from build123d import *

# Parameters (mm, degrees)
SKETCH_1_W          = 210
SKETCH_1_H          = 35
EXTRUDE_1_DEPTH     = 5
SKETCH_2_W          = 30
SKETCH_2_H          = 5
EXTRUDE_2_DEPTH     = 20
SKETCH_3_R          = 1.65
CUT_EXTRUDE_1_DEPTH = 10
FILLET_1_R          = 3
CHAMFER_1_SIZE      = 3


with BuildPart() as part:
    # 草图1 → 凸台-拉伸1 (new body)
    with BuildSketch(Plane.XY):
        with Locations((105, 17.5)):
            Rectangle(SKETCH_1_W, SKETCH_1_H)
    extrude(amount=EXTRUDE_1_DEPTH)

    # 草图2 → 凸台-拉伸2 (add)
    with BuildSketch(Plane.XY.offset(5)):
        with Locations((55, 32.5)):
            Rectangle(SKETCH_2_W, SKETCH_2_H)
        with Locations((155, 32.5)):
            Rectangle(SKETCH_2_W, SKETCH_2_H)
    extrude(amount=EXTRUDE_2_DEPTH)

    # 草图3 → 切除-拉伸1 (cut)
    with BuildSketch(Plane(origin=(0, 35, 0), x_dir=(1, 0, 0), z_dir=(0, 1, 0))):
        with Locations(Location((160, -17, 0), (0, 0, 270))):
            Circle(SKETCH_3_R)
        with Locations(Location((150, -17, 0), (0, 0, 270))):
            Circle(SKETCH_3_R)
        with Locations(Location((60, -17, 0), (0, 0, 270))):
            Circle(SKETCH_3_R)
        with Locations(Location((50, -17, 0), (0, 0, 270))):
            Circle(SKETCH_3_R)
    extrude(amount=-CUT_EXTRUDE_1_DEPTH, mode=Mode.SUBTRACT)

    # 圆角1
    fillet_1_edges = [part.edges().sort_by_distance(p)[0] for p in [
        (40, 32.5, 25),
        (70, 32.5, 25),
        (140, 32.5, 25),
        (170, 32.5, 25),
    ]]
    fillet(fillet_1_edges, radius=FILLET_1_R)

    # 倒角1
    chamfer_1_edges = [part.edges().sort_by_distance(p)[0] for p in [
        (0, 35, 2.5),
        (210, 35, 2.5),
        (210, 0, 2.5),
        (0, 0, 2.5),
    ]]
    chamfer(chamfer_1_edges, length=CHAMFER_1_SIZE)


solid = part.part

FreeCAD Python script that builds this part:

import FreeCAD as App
import Part
import Sketcher
from FreeCAD import Vector
Q = App.Units.Quantity


def edges_at(feature, points):
    """Names of the edges that pass closest to the given points."""
    edges = feature.Shape.Edges
    near = lambda p: min(range(len(edges)), key=lambda i: edges[i].distToShape(Part.Vertex(*p))[0])
    return sorted({f"Edge{near(p) + 1}" for p in points})


def add_polygon(sketch, points):
    """Adds a closed chain of lines whose ends are joined by coincident constraints."""
    first, n = sketch.GeometryCount, len(points)
    for a, b in zip(points, points[1:] + points[:1]):
        sketch.addGeometry(Part.LineSegment(App.Vector(*a, 0), App.Vector(*b, 0)), False)
    for i in range(n):
        sketch.addConstraint(Sketcher.Constraint("Coincident", first + i, 2, first + (i + 1) % n, 1))

doc = App.newDocument("Part")
body = doc.addObject("PartDesign::Body", "Body")

# Sketch on XY plane
sketch1 = doc.addObject("Sketcher::SketchObject", "Sketch")
body.addObject(sketch1)
sketch1.AttachmentSupport = (doc.XY_Plane, [""])
sketch1.MapMode = "FlatFace"
add_polygon(sketch1, [(0, 35), (0, 0), (210, 0), (210, 35)])  # lines 0-3
sketch1.addConstraint([
    Sketcher.Constraint("Vertical", 0),
    Sketcher.Constraint("Horizontal", 1),
    Sketcher.Constraint("Vertical", 2),
    Sketcher.Constraint("Horizontal", 3),
    Sketcher.Constraint("Coincident", 0, 2, -1, 1),
    Sketcher.Constraint("DistanceX", 1, 1, 1, 2, Q("210 mm")),
    Sketcher.Constraint("DistanceY", 0, 2, 0, 1, Q("35 mm")),
])
pad1 = doc.addObject("PartDesign::Pad", "Pad")
body.addObject(pad1)
pad1.Profile = sketch1
pad1.Length = 5

# Sketch on XY plane
sketch2 = doc.addObject("Sketcher::SketchObject", "Sketch001")
body.addObject(sketch2)
sketch2.AttachmentSupport = (doc.XY_Plane, [""])
sketch2.MapMode = "FlatFace"
sketch2.AttachmentOffset = App.Placement(Vector(0, 0, 5), App.Rotation())
add_polygon(sketch2, [(40, 35), (40, 30), (70, 30), (70, 35)])  # lines 0-3
add_polygon(sketch2, [(140, 35), (140, 30), (170, 30), (170, 35)])  # lines 4-7
sketch2.addConstraint([
    Sketcher.Constraint("Vertical", 0),
    Sketcher.Constraint("Horizontal", 1),
    Sketcher.Constraint("Vertical", 2),
    Sketcher.Constraint("Horizontal", 3),
    Sketcher.Constraint("Vertical", 4),
    Sketcher.Constraint("Horizontal", 5),
    Sketcher.Constraint("Vertical", 6),
    Sketcher.Constraint("Horizontal", 7),
    Sketcher.Constraint("Horizontal", 1, 2, 4, 2),
    Sketcher.Constraint("Horizontal", 3, 2, 6, 2),
    Sketcher.Constraint("Equal", 3, 5),
    Sketcher.Constraint("DistanceX", 1, 1, 1, 2, Q("30 mm")),
    Sketcher.Constraint("DistanceY", 0, 2, 0, 1, Q("5 mm")),
    Sketcher.Constraint("DistanceX", -1, 1, 0, 2, Q("40 mm")),
    Sketcher.Constraint("DistanceY", -1, 1, 0, 2, Q("30 mm")),
    Sketcher.Constraint("DistanceX", -1, 1, 4, 2, Q("140 mm")),
])
pad2 = doc.addObject("PartDesign::Pad", "Pad001")
body.addObject(pad2)
pad2.Profile = sketch2
pad2.Length = 20

# Sketch on XZ plane
sketch3 = doc.addObject("Sketcher::SketchObject", "Sketch002")
body.addObject(sketch3)
sketch3.AttachmentSupport = (doc.XZ_Plane, [""])
sketch3.MapMode = "FlatFace"
sketch3.AttachmentOffset = App.Placement(Vector(0, 0, -35), App.Rotation())
sketch3.addGeometry([
    Part.Circle(Vector(160, 17, 0), Vector(0, 0, 1), 1.65),
    Part.Circle(Vector(150, 17, 0), Vector(0, 0, 1), 1.65),
    Part.Circle(Vector(60, 17, 0), Vector(0, 0, 1), 1.65),
    Part.Circle(Vector(50, 17, 0), Vector(0, 0, 1), 1.65),
], False)
sketch3.addConstraint([
    Sketcher.Constraint("Equal", 0, 1),
    Sketcher.Constraint("Equal", 1, 2),
    Sketcher.Constraint("Equal", 2, 3),
    Sketcher.Constraint("Horizontal", 0, 3, 1, 3),
    Sketcher.Constraint("Horizontal", 1, 3, 2, 3),
    Sketcher.Constraint("Horizontal", 2, 3, 3, 3),
    Sketcher.Constraint("Diameter", 0, Q("3.3 mm")),
    Sketcher.Constraint("DistanceX", -1, 1, 0, 3, Q("160 mm")),
    Sketcher.Constraint("DistanceY", -1, 1, 0, 3, Q("17 mm")),
    Sketcher.Constraint("DistanceX", -1, 1, 1, 3, Q("150 mm")),
    Sketcher.Constraint("DistanceX", -1, 1, 2, 3, Q("60 mm")),
    Sketcher.Constraint("DistanceX", -1, 1, 3, 3, Q("50 mm")),
])
pocket1 = doc.addObject("PartDesign::Pocket", "Pocket")
body.addObject(pocket1)
pocket1.Profile = sketch3
pocket1.Length = 10
pocket1.Reversed = True
doc.recompute()

fillet = doc.addObject("PartDesign::Fillet", "Fillet")
body.addObject(fillet)
fillet.Base = (pocket1, edges_at(pocket1, [
    (40, 32.5, 25),
    (70, 32.5, 25),
    (140, 32.5, 25),
    (170, 32.5, 25),
]))
fillet.Radius = 3
doc.recompute()

chamfer = doc.addObject("PartDesign::Chamfer", "Chamfer")
body.addObject(chamfer)
chamfer.Base = (fillet, edges_at(fillet, [
    (0, 35, 2.5),
    (210, 35, 2.5),
    (210, 0, 2.5),
    (0, 0, 2.5),
]))
chamfer.Size = 3

doc.recompute()
